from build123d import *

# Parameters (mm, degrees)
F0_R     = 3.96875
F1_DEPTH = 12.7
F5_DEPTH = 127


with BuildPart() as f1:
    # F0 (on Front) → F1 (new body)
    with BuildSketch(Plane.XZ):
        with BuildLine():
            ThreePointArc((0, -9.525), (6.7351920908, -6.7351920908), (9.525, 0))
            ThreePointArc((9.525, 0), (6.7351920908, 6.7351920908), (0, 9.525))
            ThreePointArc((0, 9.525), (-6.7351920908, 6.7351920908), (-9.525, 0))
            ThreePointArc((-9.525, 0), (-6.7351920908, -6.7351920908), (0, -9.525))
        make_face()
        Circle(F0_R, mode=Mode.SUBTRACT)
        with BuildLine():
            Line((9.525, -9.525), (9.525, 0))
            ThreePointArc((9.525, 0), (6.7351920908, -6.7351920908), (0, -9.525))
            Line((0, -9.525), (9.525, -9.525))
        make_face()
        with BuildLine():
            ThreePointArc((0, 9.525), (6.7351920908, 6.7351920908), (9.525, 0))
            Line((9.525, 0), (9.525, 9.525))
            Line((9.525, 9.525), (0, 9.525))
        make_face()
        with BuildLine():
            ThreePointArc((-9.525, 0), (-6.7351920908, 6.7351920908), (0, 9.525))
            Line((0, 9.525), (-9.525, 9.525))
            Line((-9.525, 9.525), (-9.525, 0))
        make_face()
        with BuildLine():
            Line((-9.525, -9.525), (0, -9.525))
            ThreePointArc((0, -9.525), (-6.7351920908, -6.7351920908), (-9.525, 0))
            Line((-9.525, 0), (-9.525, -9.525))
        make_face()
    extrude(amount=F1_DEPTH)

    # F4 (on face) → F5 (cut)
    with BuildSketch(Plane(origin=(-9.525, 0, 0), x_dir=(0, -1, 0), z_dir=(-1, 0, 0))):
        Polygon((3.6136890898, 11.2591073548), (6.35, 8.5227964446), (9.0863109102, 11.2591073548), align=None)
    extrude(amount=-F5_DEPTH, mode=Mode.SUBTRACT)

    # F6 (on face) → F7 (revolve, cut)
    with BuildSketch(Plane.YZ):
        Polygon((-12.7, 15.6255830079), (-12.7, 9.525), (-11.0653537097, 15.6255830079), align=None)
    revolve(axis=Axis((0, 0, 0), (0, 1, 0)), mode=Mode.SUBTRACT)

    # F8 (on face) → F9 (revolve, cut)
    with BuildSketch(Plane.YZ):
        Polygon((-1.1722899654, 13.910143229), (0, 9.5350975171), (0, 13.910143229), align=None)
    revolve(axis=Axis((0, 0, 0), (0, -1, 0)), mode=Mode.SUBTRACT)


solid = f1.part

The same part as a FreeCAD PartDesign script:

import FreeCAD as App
import Part
import Sketcher

V = App.Vector
Q = App.Units.Quantity

doc = App.newDocument("Part")
body = doc.addObject("PartDesign::Body", "Body")

# Sketch on XZ plane
sketch1 = body.newObject("Sketcher::SketchObject", "Sketch")
sketch1.AttachmentSupport = (doc.getObject("XZ_Plane"), [""])
sketch1.MapMode = "FlatFace"
sketch1.addGeometry([
    Part.LineSegment(V(9.5, -9.5, 0), V(9.5, 9.5, 0)),  # 0
    Part.LineSegment(V(9.5, 9.5, 0), V(-9.5, 9.5, 0)),  # 1
    Part.LineSegment(V(-9.5, 9.5, 0), V(-9.5, -9.5, 0)),  # 2
    Part.LineSegment(V(-9.5, -9.5, 0), V(9.5, -9.5, 0)),  # 3
    Part.Circle(V(0, 0, 0), V(0, 0, 1), 4),  # 4
], False)
sketch1.addConstraint([
    Sketcher.Constraint("Coincident", 0, 2, 1, 1),
    Sketcher.Constraint("Coincident", 1, 2, 2, 1),
    Sketcher.Constraint("Coincident", 2, 2, 3, 1),
    Sketcher.Constraint("Coincident", 3, 2, 0, 1),
    Sketcher.Constraint("Vertical", 0),
    Sketcher.Constraint("Horizontal", 1),
    Sketcher.Constraint("Vertical", 2),
    Sketcher.Constraint("Horizontal", 3),
    Sketcher.Constraint("Coincident", 4, 3, -1, 1),
    Sketcher.Constraint("Symmetric", 0, 2, 2, 2, -1, 1),
    Sketcher.Constraint("Equal", 3, 0),
    Sketcher.Constraint("Diameter", 4, Q("0.3125 in")),
    Sketcher.Constraint("DistanceX", 1, 2, 1, 1, Q("0.75 in")),
])
pad1 = body.newObject("PartDesign::Pad", "Pad")
pad1.Profile = sketch1
pad1.Length = Q("0.5 in")

# Sketch on YZ plane
sketch2 = body.newObject("Sketcher::SketchObject", "Sketch001")
sketch2.AttachmentSupport = (doc.getObject("YZ_Plane"), [""])
sketch2.MapMode = "FlatFace"
sketch2.AttachmentOffset = App.Placement(V(0, 0, -0.375 * 25.4), App.Rotation())
sketch2.addGeometry([
    Part.LineSegment(V(-3.6, 11.3, 0), V(-6.3, 8.5, 0)),
    Part.LineSegment(V(-6.3, 8.5, 0), V(-9.1, 11.3, 0)),
    Part.LineSegment(V(-9.1, 11.3, 0), V(-3.6, 11.3, 0)),
], False)
sketch2.addConstraint([
    Sketcher.Constraint("Coincident", 0, 2, 1, 1),
    Sketcher.Constraint("Coincident", 1, 2, 2, 1),
    Sketcher.Constraint("Coincident", 2, 2, 0, 1),
    Sketcher.Constraint("Horizontal", 2),
    Sketcher.Constraint("Perpendicular", 0, 1),
    Sketcher.Constraint("Equal", 0, 1),
    Sketcher.Constraint("DistanceX", 0, 2, -1, 1, Q("0.25 in")),
    Sketcher.Constraint("DistanceX", 2, 1, 2, 2, Q("5.472622 mm")),
    Sketcher.Constraint("DistanceY", -1, 1, 0, 2, Q("8.522796 mm")),
])
pocket1 = body.newObject("PartDesign::Pocket", "Pocket")
pocket1.Profile = sketch2
pocket1.Length = Q("5 in")
pocket1.Reversed = True

# Sketch on YZ plane
sketch3 = body.newObject("Sketcher::SketchObject", "Sketch002")
sketch3.AttachmentSupport = (doc.getObject("YZ_Plane"), [""])
sketch3.MapMode = "FlatFace"
sketch3.addGeometry([
    Part.LineSegment(V(-12.7, 15.6, 0), V(-12.7, 9.5, 0)),
    Part.LineSegment(V(-12.7, 9.5, 0), V(-11.1, 15.6, 0)),
    Part.LineSegment(V(-11.1, 15.6, 0), V(-12.7, 15.6, 0)),
], False)
sketch3.addConstraint([
    Sketcher.Constraint("Coincident", 0, 2, 1, 1),
    Sketcher.Constraint("Coincident", 1, 2, 2, 1),
    Sketcher.Constraint("Coincident", 2, 2, 0, 1),
    Sketcher.Constraint("Vertical", 0),
    Sketcher.Constraint("Horizontal", 2),
    Sketcher.Constraint("Angle", 1, Q("75 deg")),
    Sketcher.Constraint("DistanceX", 0, 2, -1, 1, Q("0.5 in")),
    Sketcher.Constraint("DistanceY", -1, 1, 0, 2, Q("0.375 in")),
    Sketcher.Constraint("Distance", 1, Q("6.315788 mm")),
])
groove = body.newObject("PartDesign::Groove", "Groove")
groove.Profile = sketch3
groove.ReferenceAxis = (sketch3, ["H_Axis"])
groove.Angle = 360

# Sketch on YZ plane
sketch4 = body.newObject("Sketcher::SketchObject", "Sketch003")
sketch4.AttachmentSupport = (doc.getObject("YZ_Plane"), [""])
sketch4.MapMode = "FlatFace"
sketch4.addGeometry([
    Part.LineSegment(V(-1.2, 13.9, 0), V(0, 9.5, 0)),
    Part.LineSegment(V(0, 9.5, 0), V(0, 13.9, 0)),
    Part.LineSegment(V(0, 13.9, 0), V(-1.2, 13.9, 0)),
], False)
sketch4.addConstraint([
    Sketcher.Constraint("Coincident", 0, 2, 1, 1),
    Sketcher.Constraint("Coincident", 1, 2, 2, 1),
    Sketcher.Constraint("Coincident", 2, 2, 0, 1),
    Sketcher.Constraint("Vertical", 1),
    Sketcher.Constraint("Horizontal", 2),
    Sketcher.Constraint("PointOnObject", 0, 2, -2),
    Sketcher.Constraint("Angle", 0, Q("-75 deg")),
    Sketcher.Constraint("DistanceX", 2, 2, 2, 1, Q("1.17229 mm")),
    Sketcher.Constraint("DistanceY", -1, 1, 0, 2, Q("9.535098 mm")),
])
groove2 = body.newObject("PartDesign::Groove", "Groove001")
groove2.Profile = sketch4
groove2.ReferenceAxis = (sketch4, ["H_Axis"])
groove2.Angle = 360

doc.recompute()
